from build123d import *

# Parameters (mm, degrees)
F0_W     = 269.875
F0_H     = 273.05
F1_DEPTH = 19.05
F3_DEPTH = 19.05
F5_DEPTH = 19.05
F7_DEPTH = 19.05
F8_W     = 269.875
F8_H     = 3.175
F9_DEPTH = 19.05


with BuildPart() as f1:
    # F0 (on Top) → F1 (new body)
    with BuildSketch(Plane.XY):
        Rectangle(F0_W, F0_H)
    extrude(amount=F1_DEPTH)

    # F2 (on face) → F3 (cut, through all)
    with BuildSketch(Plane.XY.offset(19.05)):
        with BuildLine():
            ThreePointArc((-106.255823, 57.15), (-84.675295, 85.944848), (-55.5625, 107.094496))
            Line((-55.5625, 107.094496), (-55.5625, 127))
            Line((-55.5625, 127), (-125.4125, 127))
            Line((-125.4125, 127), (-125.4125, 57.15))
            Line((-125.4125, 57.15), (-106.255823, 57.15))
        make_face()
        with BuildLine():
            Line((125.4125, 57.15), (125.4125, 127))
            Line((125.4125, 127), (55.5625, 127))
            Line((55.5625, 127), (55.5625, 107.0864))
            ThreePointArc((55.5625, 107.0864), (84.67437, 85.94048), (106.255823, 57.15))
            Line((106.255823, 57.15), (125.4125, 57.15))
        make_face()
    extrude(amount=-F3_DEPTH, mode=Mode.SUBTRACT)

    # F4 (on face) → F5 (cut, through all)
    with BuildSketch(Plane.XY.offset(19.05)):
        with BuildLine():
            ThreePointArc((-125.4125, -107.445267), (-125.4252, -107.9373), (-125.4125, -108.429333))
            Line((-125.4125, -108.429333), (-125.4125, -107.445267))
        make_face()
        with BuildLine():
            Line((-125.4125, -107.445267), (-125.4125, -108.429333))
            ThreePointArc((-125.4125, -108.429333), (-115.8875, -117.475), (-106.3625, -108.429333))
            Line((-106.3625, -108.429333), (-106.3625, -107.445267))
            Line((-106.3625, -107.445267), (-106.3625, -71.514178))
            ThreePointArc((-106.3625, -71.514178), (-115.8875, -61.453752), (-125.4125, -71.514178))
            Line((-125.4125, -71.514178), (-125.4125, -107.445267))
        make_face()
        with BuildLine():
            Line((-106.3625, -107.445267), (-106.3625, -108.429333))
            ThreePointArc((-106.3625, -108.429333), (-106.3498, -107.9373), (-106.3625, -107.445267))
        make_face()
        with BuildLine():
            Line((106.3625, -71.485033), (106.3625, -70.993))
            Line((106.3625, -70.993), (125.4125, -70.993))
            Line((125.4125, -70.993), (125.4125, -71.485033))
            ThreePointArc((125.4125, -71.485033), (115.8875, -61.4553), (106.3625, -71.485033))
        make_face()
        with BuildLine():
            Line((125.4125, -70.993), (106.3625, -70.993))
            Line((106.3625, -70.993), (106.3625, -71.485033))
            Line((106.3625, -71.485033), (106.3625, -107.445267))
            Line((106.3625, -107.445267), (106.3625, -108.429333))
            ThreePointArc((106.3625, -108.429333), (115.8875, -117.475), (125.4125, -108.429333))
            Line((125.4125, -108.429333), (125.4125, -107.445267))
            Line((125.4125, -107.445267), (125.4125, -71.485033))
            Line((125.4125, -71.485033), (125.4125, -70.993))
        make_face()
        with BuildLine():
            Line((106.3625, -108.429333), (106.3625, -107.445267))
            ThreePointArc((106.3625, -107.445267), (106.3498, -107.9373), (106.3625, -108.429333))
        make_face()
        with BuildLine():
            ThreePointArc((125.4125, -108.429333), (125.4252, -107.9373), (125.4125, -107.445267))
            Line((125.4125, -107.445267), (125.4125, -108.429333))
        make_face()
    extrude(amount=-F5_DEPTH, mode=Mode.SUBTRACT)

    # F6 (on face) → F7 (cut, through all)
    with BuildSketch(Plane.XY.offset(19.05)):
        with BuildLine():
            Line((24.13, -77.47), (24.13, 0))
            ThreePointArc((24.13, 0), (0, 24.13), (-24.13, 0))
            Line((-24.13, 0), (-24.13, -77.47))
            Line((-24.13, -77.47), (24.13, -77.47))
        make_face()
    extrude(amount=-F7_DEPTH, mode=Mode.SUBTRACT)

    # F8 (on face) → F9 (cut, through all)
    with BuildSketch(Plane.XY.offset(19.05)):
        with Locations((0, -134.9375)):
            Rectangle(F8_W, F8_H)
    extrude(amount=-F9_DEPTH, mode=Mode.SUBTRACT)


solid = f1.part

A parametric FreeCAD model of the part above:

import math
import FreeCAD as App
import Part
import Sketcher
from FreeCAD import Vector
Q = App.Units.Quantity


def add_polygon(sketch, points):
    """Adds a closed chain of lines whose ends are joined by coincident constraints."""
    first, n = sketch.GeometryCount, len(points)
    for a, b in zip(points, points[1:] + points[:1]):
        sketch.addGeometry(Part.LineSegment(App.Vector(*a, 0), App.Vector(*b, 0)), False)
    for i in range(n):
        sketch.addConstraint(Sketcher.Constraint("Coincident", first + i, 2, first + (i + 1) % n, 1))

doc = App.newDocument("Part")
body = doc.addObject("PartDesign::Body", "Body")

# Sketch on XY plane
sketch1 = doc.addObject("Sketcher::SketchObject", "Sketch")
body.addObject(sketch1)
sketch1.AttachmentSupport = (doc.XY_Plane, [""])
sketch1.MapMode = "FlatFace"
add_polygon(sketch1, [(-134.9375, 136.525), (-134.9375, -136.525), (134.9375, -136.525), (134.9375, 136.525)])  # lines 0-3
sketch1.addConstraint([
    Sketcher.Constraint("Vertical", 0),
    Sketcher.Constraint("Horizontal", 1),
    Sketcher.Constraint("Vertical", 2),
    Sketcher.Constraint("Horizontal", 3),
    Sketcher.Constraint("Symmetric", 0, 2, 2, 2, -1, 1),
    Sketcher.Constraint("DistanceY", 0, 2, 0, 1, Q("10.75 in")),
    Sketcher.Constraint("DistanceX", 1, 1, 1, 2, Q("10.625 in")),
])
pad1 = doc.addObject("PartDesign::Pad", "Pad")
body.addObject(pad1)
pad1.Profile = sketch1
pad1.Length = Q("0.75 in")

# Sketch on XY plane
sketch2 = doc.addObject("Sketcher::SketchObject", "Sketch001")
body.addObject(sketch2)
sketch2.AttachmentSupport = (doc.XY_Plane, [""])
sketch2.MapMode = "FlatFace"
sketch2.AttachmentOffset = App.Placement(Vector(0, 0, 0.75 * 25.4), App.Rotation())
sketch2.addGeometry([
    Part.ArcOfCircle(Part.Circle(Vector(-0.000002, 0.000002, 0), Vector(0, 0, 1), 120.649997), math.radians(117.421075), math.radians(151.726287)),  # 0
    Part.LineSegment(Vector(-55.5625, 107.094496, 0), Vector(-55.5625, 127, 0)),  # 1
    Part.LineSegment(Vector(-55.5625, 127, 0), Vector(-125.4125, 127, 0)),  # 2
    Part.LineSegment(Vector(-125.4125, 127, 0), Vector(-125.4125, 57.15, 0)),  # 3
    Part.LineSegment(Vector(-125.4125, 57.15, 0), Vector(-106.255823, 57.15, 0)),  # 4
    Part.LineSegment(Vector(125.4125, 57.15, 0), Vector(125.4125, 127, 0)),  # 5
    Part.LineSegment(Vector(125.4125, 127, 0), Vector(55.5625, 127, 0)),  # 6
    Part.LineSegment(Vector(55.5625, 127, 0), Vector(55.5625, 107.0864, 0)),  # 7
    Part.ArcOfCircle(Part.Circle(Vector(0.006037, -0.011233, 0), Vector(0, 0, 1), 120.650004), math.radians(28.27977), math.radians(62.582156)),  # 8
    Part.LineSegment(Vector(106.255823, 57.15, 0), Vector(125.4125, 57.15, 0)),  # 9
], False)
sketch2.addConstraint([
    Sketcher.Constraint("Coincident", 0, 1, 1, 1),
    Sketcher.Constraint("Coincident", 1, 2, 2, 1),
    Sketcher.Constraint("Coincident", 2, 2, 3, 1),
    Sketcher.Constraint("Coincident", 3, 2, 4, 1),
    Sketcher.Constraint("Coincident", 4, 2, 0, 2),
    Sketcher.Constraint("Coincident", 5, 2, 6, 1),
    Sketcher.Constraint("Coincident", 6, 2, 7, 1),
    Sketcher.Constraint("Coincident", 7, 2, 8, 2),
    Sketcher.Constraint("Coincident", 8, 1, 9, 1),
    Sketcher.Constraint("Coincident", 9, 2, 5, 1),
    Sketcher.Constraint("Vertical", 1),
    Sketcher.Constraint("Horizontal", 2),
    Sketcher.Constraint("Vertical", 3),
    Sketcher.Constraint("Horizontal", 4),
    Sketcher.Constraint("Vertical", 5),
    Sketcher.Constraint("Horizontal", 6),
    Sketcher.Constraint("Vertical", 7),
    Sketcher.Constraint("Horizontal", 9),
    Sketcher.Constraint("Coincident", 0, 3, -1, 1),
    Sketcher.Constraint("Symmetric", 2, 2, 5, 2, -2),
    Sketcher.Constraint("Symmetric", 4, 2, 8, 1, -2),
    Sketcher.Constraint("Equal", 2, 6),
    Sketcher.Constraint("Equal", 6, 3),
    Sketcher.Constraint("Radius", 0, Q("4.7499999 in")),
    Sketcher.Constraint("Radius", 8, Q("4.7500002 in")),
    Sketcher.Constraint("DistanceY", -1, 1, 1, 2, Q("5 in")),
    Sketcher.Constraint("DistanceX", 2, 2, 2, 1, Q("2.75 in")),
    Sketcher.Constraint("DistanceY", 7, 2, 7, 1, Q("0.784 in")),
    Sketcher.Constraint("DistanceX", 4, 1, 4, 2, Q("0.7541999 in")),
])
pocket1 = doc.addObject("PartDesign::Pocket", "Pocket")
body.addObject(pocket1)
pocket1.Profile = sketch2
pocket1.Type = "ThroughAll"

# Sketch on XY plane
sketch3 = doc.addObject("Sketcher::SketchObject", "Sketch002")
body.addObject(sketch3)
sketch3.AttachmentSupport = (doc.XY_Plane, [""])
sketch3.MapMode = "FlatFace"
sketch3.AttachmentOffset = App.Placement(Vector(0, 0, 0.75 * 25.4), App.Rotation())
sketch3.addGeometry([
    Part.ArcOfCircle(Part.Circle(Vector(-115.887493, -107.9373, 0), Vector(0, 0, 1), 9.537707), math.radians(177.042902), math.radians(182.957098)),  # 0
    Part.ArcOfCircle(Part.Circle(Vector(-115.8875, -107.9373, 0), Vector(0, 0, 1), 9.5377), math.radians(-177.0429), math.radians(-2.9571)),  # 1
    Part.ArcOfCircle(Part.Circle(Vector(-115.887507, -107.9373, 0), Vector(0, 0, 1), 9.537707), math.radians(-2.957098), math.radians(2.957098)),  # 2
    Part.LineSegment(Vector(-106.3625, -107.445267, 0), Vector(-106.3625, -71.514178, 0)),  # 3
    Part.ArcOfCircle(Part.Circle(Vector(-115.8875, -70.993, 0), Vector(0, 0, 1), 9.539248), math.radians(-3.131922), math.radians(183.131922)),  # 4
    Part.LineSegment(Vector(-125.4125, -71.514178, 0), Vector(-125.4125, -107.445267, 0)),  # 5
    Part.ArcOfCircle(Part.Circle(Vector(115.8875, -70.993, 0), Vector(0, 0, 1), 9.5377), math.radians(-2.9571), math.radians(182.9571)),  # 6
    Part.LineSegment(Vector(106.3625, -71.485033, 0), Vector(106.3625, -107.445267, 0)),  # 7
    Part.ArcOfCircle(Part.Circle(Vector(115.887507, -107.9373, 0), Vector(0, 0, 1), 9.537707), math.radians(177.042902), math.radians(182.957098)),  # 8
    Part.ArcOfCircle(Part.Circle(Vector(115.8875, -107.9373, 0), Vector(0, 0, 1), 9.5377), math.radians(-177.0429), math.radians(-2.9571)),  # 9
    Part.ArcOfCircle(Part.Circle(Vector(115.887493, -107.9373, 0), Vector(0, 0, 1), 9.537707), math.radians(-2.957098), math.radians(2.957098)),  # 10
    Part.LineSegment(Vector(125.4125, -107.445267, 0), Vector(125.4125, -71.485033, 0)),  # 11
], False)
sketch3.addConstraint([
    Sketcher.Constraint("Tangent", 0, 2, 1, 1),
    Sketcher.Constraint("Tangent", 1, 2, 2, 1),
    Sketcher.Constraint("Coincident", 2, 2, 3, 1),
    Sketcher.Constraint("Coincident", 3, 2, 4, 1),
    Sketcher.Constraint("Coincident", 4, 2, 5, 1),
    Sketcher.Constraint("Coincident", 5, 2, 0, 1),
    Sketcher.Constraint("Coincident", 6, 2, 7, 1),
    Sketcher.Constraint("Coincident", 7, 2, 8, 1),
    Sketcher.Constraint("Tangent", 8, 2, 9, 1),
    Sketcher.Constraint("Tangent", 9, 2, 10, 1),
    Sketcher.Constraint("Coincident", 10, 2, 11, 1),
    Sketcher.Constraint("Coincident", 11, 2, 6, 1),
    Sketcher.Constraint("Vertical", 3),
    Sketcher.Constraint("Vertical", 5),
    Sketcher.Constraint("Vertical", 7),
    Sketcher.Constraint("Vertical", 11),
    Sketcher.Constraint("Equal", 0, 2),
    Sketcher.Constraint("Equal", 1, 6),
    Sketcher.Constraint("Equal", 2, 8),
    Sketcher.Constraint("Equal", 6, 9),
    Sketcher.Constraint("Equal", 8, 10),
    Sketcher.Constraint("Symmetric", 4, 3, 6, 3, -2),
    Sketcher.Constraint("Symmetric", 1, 3, 8, 3, -2),
    Sketcher.Constraint("Symmetric", 2, 2, 7, 2, -2),
    Sketcher.Constraint("Horizontal", 0, 2, 1, 2),
    Sketcher.Constraint("Horizontal", 3, 2, 4, 2),
    Sketcher.Constraint("Horizontal", 2, 2, 5, 2),
    Sketcher.Constraint("Horizontal", 1, 2, 8, 2),
    Sketcher.Constraint("Horizontal", 8, 2, 9, 2),
    Sketcher.Constraint("Horizontal", 7, 2, 10, 2),
    Sketcher.Constraint("Vertical", 1, 2, 2, 2),
    Sketcher.Constraint("Radius", 1, Q("0.3755 in")),
    Sketcher.Constraint("DistanceX", 0, 2, 1, 2, Q("0.75 in")),
    Sketcher.Constraint("DistanceX", 1, 3, -1, 1, Q("4.5625 in")),
    Sketcher.Constraint("DistanceY", 4, 3, -1, 1, Q("2.795 in")),
    Sketcher.Constraint("DistanceY", 0, 3, -1, 1, Q("4.2495 in")),
    Sketcher.Constraint("Radius", 4, Q("9.539248 mm")),
])
pocket2 = doc.addObject("PartDesign::Pocket", "Pocket001")
body.addObject(pocket2)
pocket2.Profile = sketch3
pocket2.Type = "ThroughAll"

# Sketch on XY plane
sketch4 = doc.addObject("Sketcher::SketchObject", "Sketch003")
body.addObject(sketch4)
sketch4.AttachmentSupport = (doc.XY_Plane, [""])
sketch4.MapMode = "FlatFace"
sketch4.AttachmentOffset = App.Placement(Vector(0, 0, 0.75 * 25.4), App.Rotation())
sketch4.addGeometry([
    Part.LineSegment(Vector(24.13, -77.47, 0), Vector(24.13, 0, 0)),
    Part.ArcOfCircle(Part.Circle(Vector(0, 0, 0), Vector(0, 0, 1), 24.13), math.radians(0), math.radians(180)),
    Part.LineSegment(Vector(-24.13, 0, 0), Vector(-24.13, -77.47, 0)),
    Part.LineSegment(Vector(-24.13, -77.47, 0), Vector(24.13, -77.47, 0)),
], False)
sketch4.addConstraint([
    Sketcher.Constraint("Tangent", 0, 2, 1, 1),
    Sketcher.Constraint("Tangent", 1, 2, 2, 1),
    Sketcher.Constraint("Coincident", 2, 2, 3, 1),
    Sketcher.Constraint("Coincident", 3, 2, 0, 1),
    Sketcher.Constraint("Vertical", 0),
    Sketcher.Constraint("Vertical", 2),
    Sketcher.Constraint("Horizontal", 3),
    Sketcher.Constraint("Coincident", 1, 3, -1, 1),
    Sketcher.Constraint("Radius", 1, Q("0.95 in")),
    Sketcher.Constraint("DistanceY", 0, 1, 0, 2, Q("3.05 in")),
])
pocket3 = doc.addObject("PartDesign::Pocket", "Pocket002")
body.addObject(pocket3)
pocket3.Profile = sketch4
pocket3.Type = "ThroughAll"

# Sketch on XY plane
sketch5 = doc.addObject("Sketcher::SketchObject", "Sketch004")
body.addObject(sketch5)
sketch5.AttachmentSupport = (doc.XY_Plane, [""])
sketch5.MapMode = "FlatFace"
sketch5.AttachmentOffset = App.Placement(Vector(0, 0, 0.75 * 25.4), App.Rotation())
add_polygon(sketch5, [(-134.9375, -133.35), (-134.9375, -136.525), (134.9375, -136.525), (134.9375, -133.35)])  # lines 0-3
sketch5.addConstraint([
    Sketcher.Constraint("Vertical", 0),
    Sketcher.Constraint("Horizontal", 1),
    Sketcher.Constraint("Vertical", 2),
    Sketcher.Constraint("Horizontal", 3),
    Sketcher.Constraint("DistanceX", 1, 1, 1, 2, Q("10.625 in")),
    Sketcher.Constraint("DistanceY", 0, 2, 0, 1, Q("0.125 in")),
    Sketcher.Constraint("DistanceY", 2, 2, -1, 1, Q("5.25 in")),
    Sketcher.Constraint("DistanceX", 0, 2, -1, 1, Q("5.3125 in")),
])
pocket4 = doc.addObject("PartDesign::Pocket", "Pocket003")
body.addObject(pocket4)
pocket4.Profile = sketch5
pocket4.Type = "ThroughAll"

doc.recompute()
